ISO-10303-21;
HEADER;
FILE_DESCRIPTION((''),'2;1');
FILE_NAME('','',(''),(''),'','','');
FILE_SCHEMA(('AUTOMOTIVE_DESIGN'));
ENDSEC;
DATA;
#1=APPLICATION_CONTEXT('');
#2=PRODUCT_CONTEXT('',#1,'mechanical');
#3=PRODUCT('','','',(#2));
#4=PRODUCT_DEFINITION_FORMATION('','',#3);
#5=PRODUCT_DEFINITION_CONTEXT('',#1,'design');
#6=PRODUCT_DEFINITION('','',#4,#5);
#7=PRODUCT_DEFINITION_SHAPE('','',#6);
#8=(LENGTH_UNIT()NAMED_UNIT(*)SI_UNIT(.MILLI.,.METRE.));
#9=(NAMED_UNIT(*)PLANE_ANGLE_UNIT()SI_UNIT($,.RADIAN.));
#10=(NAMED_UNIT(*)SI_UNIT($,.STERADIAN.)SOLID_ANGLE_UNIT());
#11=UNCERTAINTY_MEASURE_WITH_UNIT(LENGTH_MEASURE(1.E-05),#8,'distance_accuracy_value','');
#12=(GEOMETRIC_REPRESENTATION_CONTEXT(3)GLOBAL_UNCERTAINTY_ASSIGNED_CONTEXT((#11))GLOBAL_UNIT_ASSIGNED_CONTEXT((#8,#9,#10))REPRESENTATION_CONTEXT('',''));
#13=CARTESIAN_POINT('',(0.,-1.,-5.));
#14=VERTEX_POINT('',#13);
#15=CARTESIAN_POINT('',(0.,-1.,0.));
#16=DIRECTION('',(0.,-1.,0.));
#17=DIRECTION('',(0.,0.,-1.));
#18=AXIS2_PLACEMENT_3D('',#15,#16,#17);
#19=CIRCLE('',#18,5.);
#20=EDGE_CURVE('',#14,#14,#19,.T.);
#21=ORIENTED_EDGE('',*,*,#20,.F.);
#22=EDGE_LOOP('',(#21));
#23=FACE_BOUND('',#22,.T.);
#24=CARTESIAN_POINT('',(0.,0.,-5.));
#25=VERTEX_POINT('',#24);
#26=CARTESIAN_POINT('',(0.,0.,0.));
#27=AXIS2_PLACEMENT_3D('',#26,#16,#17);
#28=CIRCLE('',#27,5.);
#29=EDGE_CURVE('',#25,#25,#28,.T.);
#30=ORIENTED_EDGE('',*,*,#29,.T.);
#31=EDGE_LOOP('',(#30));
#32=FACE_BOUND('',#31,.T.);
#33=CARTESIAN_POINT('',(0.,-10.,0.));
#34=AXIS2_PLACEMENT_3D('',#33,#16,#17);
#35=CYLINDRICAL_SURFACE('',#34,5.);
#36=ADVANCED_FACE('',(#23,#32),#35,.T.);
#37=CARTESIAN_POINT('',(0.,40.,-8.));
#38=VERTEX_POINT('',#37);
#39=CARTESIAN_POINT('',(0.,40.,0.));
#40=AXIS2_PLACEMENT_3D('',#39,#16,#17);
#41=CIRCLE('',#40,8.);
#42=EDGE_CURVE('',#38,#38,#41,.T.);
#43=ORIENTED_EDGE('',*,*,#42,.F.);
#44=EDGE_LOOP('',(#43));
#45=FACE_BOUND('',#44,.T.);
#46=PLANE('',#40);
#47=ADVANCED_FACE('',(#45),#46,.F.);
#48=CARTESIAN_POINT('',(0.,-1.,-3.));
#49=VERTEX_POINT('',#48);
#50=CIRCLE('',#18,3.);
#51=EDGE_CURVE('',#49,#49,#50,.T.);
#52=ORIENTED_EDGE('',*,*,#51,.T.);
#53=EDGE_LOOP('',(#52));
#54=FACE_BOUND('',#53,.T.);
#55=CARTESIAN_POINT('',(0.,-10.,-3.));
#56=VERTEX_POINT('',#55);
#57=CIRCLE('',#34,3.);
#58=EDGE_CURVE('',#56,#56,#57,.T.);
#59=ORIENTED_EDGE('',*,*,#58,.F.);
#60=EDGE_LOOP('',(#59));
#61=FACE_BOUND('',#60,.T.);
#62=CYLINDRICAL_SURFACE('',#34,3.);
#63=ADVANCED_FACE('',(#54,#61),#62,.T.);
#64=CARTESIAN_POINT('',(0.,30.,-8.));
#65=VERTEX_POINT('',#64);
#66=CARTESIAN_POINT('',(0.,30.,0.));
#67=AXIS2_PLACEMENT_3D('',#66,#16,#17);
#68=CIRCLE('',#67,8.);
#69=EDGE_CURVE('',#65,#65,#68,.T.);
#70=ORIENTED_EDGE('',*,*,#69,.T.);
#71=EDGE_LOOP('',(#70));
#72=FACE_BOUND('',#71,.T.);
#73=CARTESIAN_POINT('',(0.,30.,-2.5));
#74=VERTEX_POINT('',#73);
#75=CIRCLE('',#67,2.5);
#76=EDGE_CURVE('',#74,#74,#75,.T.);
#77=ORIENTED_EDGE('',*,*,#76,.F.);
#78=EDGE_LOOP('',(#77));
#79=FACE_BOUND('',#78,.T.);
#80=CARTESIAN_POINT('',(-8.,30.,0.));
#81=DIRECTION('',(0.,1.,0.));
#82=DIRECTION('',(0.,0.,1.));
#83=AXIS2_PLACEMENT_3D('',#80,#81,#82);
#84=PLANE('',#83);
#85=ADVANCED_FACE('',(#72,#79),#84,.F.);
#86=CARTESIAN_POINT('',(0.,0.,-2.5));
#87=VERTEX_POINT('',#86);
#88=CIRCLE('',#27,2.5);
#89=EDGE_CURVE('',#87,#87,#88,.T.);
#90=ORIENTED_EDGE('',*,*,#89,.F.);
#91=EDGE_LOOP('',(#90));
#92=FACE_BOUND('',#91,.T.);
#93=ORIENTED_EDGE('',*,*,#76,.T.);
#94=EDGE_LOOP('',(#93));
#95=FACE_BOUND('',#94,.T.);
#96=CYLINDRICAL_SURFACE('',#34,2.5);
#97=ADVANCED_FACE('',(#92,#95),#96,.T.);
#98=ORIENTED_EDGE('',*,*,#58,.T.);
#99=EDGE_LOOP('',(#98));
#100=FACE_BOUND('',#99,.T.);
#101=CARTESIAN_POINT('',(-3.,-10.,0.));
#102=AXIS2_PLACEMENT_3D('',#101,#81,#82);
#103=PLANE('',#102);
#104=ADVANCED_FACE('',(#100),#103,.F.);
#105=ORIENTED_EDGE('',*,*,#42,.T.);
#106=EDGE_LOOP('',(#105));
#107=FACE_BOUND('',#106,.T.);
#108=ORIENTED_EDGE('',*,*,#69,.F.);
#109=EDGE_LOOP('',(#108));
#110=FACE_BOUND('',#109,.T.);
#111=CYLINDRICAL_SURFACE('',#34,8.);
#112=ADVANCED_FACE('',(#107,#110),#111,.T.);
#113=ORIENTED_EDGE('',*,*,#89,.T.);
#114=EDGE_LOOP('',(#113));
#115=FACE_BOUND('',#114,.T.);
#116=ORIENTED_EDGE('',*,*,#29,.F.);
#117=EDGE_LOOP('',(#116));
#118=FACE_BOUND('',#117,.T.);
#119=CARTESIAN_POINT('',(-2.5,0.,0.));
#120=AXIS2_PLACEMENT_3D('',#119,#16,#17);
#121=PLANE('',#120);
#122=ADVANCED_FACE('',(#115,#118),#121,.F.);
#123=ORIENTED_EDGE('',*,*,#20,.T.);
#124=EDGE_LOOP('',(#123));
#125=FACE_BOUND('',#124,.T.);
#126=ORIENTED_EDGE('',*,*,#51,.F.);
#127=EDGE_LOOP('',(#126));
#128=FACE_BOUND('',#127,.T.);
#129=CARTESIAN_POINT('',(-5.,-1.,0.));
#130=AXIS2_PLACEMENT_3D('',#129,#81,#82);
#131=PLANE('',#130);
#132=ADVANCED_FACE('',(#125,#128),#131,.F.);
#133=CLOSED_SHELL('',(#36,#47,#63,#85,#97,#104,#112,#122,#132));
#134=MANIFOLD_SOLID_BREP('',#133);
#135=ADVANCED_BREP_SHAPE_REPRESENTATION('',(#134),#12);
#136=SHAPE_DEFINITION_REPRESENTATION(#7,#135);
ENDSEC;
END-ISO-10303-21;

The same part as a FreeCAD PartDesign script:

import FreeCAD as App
import Part
import Sketcher
from FreeCAD import Vector

doc = App.newDocument("Part")
body = doc.addObject("PartDesign::Body", "Body")

sketch1 = body.newObject("Sketcher::SketchObject", "Sketch")
sketch1.AttachmentSupport = (doc.getObject("XY_Plane"), [""])
sketch1.MapMode = "FlatFace"
sketch1.addGeometry([
    Part.LineSegment(Vector(0, -10, 0), Vector(0, 40, 0)),
    Part.LineSegment(Vector(0, 40, 0), Vector(-8, 40, 0)),
    Part.LineSegment(Vector(-8, 40, 0), Vector(-8, 30, 0)),
    Part.LineSegment(Vector(-8, 30, 0), Vector(-2.5, 30, 0)),
    Part.LineSegment(Vector(-2.5, 30, 0), Vector(-2.5, 0, 0)),
    Part.LineSegment(Vector(-2.5, 0, 0), Vector(-5, 0, 0)),
    Part.LineSegment(Vector(-5, 0, 0), Vector(-5, -1, 0)),
    Part.LineSegment(Vector(-5, -1, 0), Vector(-3, -1, 0)),
    Part.LineSegment(Vector(-3, -1, 0), Vector(-3, -10, 0)),
    Part.LineSegment(Vector(-3, -10, 0), Vector(0, -10, 0)),
], False)
sketch1.addConstraint([
    Sketcher.Constraint("Coincident", 0, 2, 1, 1),
    Sketcher.Constraint("Coincident", 1, 2, 2, 1),
    Sketcher.Constraint("Coincident", 2, 2, 3, 1),
    Sketcher.Constraint("Coincident", 3, 2, 4, 1),
    Sketcher.Constraint("Coincident", 4, 2, 5, 1),
    Sketcher.Constraint("Coincident", 5, 2, 6, 1),
    Sketcher.Constraint("Coincident", 6, 2, 7, 1),
    Sketcher.Constraint("Coincident", 7, 2, 8, 1),
    Sketcher.Constraint("Coincident", 8, 2, 9, 1),
    Sketcher.Constraint("Coincident", 9, 2, 0, 1),
    Sketcher.Constraint("Vertical", 0),
    Sketcher.Constraint("Horizontal", 1),
    Sketcher.Constraint("Vertical", 2),
    Sketcher.Constraint("Horizontal", 3),
    Sketcher.Constraint("Vertical", 4),
    Sketcher.Constraint("Horizontal", 5),
    Sketcher.Constraint("Vertical", 6),
    Sketcher.Constraint("Horizontal", 7),
    Sketcher.Constraint("Vertical", 8),
    Sketcher.Constraint("Horizontal", 9),
    Sketcher.Constraint("PointOnObject", 0, 2, -2),
    Sketcher.Constraint("PointOnObject", 4, 2, -1),
    Sketcher.Constraint("DistanceX", 1, 2, 1, 1, 8.0),
    Sketcher.Constraint("DistanceX", 7, 1, 7, 2, 2.0),
    Sketcher.Constraint("DistanceX", 9, 1, 9, 2, 3.0),
    Sketcher.Constraint("DistanceY", 0, 1, 0, 2, 50.0),
    Sketcher.Constraint("DistanceY", 2, 2, 2, 1, 10.0),
    Sketcher.Constraint("DistanceY", 4, 2, 4, 1, 30.0),
    Sketcher.Constraint("DistanceY", 6, 2, 6, 1, 1.0),
    Sketcher.Constraint("DistanceX", 3, 1, 3, 2, 5.5),
])
revolution = body.newObject("PartDesign::Revolution", "Revolution")
revolution.Profile = sketch1
revolution.ReferenceAxis = (sketch1, ["V_Axis"])
revolution.Angle = 360

doc.recompute()
